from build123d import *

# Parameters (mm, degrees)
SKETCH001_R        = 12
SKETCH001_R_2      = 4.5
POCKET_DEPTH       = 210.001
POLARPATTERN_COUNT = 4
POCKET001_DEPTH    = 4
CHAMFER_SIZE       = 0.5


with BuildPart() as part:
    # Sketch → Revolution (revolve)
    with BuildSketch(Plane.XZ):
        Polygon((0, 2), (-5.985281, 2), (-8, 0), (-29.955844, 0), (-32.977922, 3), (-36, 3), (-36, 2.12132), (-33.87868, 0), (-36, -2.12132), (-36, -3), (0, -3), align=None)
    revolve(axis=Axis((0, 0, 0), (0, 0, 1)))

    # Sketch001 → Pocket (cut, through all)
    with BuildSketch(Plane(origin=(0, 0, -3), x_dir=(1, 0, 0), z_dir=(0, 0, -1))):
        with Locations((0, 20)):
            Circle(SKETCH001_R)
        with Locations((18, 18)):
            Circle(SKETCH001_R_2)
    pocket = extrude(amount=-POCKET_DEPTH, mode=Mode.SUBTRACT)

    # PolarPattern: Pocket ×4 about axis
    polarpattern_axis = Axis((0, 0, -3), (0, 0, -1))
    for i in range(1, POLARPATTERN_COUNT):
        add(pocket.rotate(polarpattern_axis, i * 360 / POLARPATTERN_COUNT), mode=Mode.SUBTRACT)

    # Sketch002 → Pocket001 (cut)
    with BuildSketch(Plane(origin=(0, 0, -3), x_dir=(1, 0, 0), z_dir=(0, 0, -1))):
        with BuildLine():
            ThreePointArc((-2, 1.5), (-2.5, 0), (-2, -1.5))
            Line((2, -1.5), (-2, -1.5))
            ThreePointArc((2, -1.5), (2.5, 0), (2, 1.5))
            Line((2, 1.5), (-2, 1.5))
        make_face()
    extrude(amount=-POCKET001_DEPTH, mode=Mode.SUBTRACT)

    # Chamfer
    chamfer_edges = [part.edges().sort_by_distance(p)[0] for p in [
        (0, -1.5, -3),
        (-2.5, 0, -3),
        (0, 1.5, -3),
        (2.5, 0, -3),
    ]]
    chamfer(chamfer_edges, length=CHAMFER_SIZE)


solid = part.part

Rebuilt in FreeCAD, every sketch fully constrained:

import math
import FreeCAD as App
import Part
import Sketcher
from FreeCAD import Vector
Q = App.Units.Quantity


def edges_at(feature, points):
    """Names of the edges that pass closest to the given points."""
    edges = feature.Shape.Edges
    near = lambda p: min(range(len(edges)), key=lambda i: edges[i].distToShape(Part.Vertex(*p))[0])
    return sorted({f"Edge{near(p) + 1}" for p in points})

doc = App.newDocument("Part")
body = doc.addObject("PartDesign::Body", "Body")

# Sketch on XZ plane
sketch1 = body.newObject("Sketcher::SketchObject", "Sketch")
sketch1.AttachmentSupport = (doc.getObject("XZ_Plane"), [""])
sketch1.MapMode = "FlatFace"
sketch1.addGeometry(Part.LineSegment(Vector(0, 2, 0), Vector(-6, 2, 0)), False)
sketch1.addGeometry(Part.LineSegment(Vector(-6, 2, 0), Vector(-8, 0, 0)), False)
sketch1.addGeometry(Part.LineSegment(Vector(-8, 0, 0), Vector(-30, 0, 0)), False)
sketch1.addGeometry(Part.LineSegment(Vector(-30, 0, 0), Vector(-33, 3, 0)), False)
sketch1.addGeometry(Part.LineSegment(Vector(-33, 3, 0), Vector(-36, 3, 0)), False)
sketch1.addGeometry(Part.LineSegment(Vector(-36, 3, 0), Vector(-36, 2.1, 0)), False)
sketch1.addGeometry(Part.LineSegment(Vector(-36, 2.1, 0), Vector(-33.9, 0, 0)), False)
sketch1.addGeometry(Part.LineSegment(Vector(-33.9, 0, 0), Vector(-36, -2.1, 0)), False)
sketch1.addGeometry(Part.LineSegment(Vector(-36, -2.1, 0), Vector(-36, -3, 0)), False)
sketch1.addGeometry(Part.LineSegment(Vector(-36, -3, 0), Vector(0, -3, 0)), False)
sketch1.addGeometry(Part.LineSegment(Vector(0, -3, 0), Vector(0, 2, 0)), False)
sketch1.addConstraint(Sketcher.Constraint("Coincident", 0, 2, 1, 1))
sketch1.addConstraint(Sketcher.Constraint("Coincident", 1, 2, 2, 1))
sketch1.addConstraint(Sketcher.Constraint("Coincident", 2, 2, 3, 1))
sketch1.addConstraint(Sketcher.Constraint("Coincident", 3, 2, 4, 1))
sketch1.addConstraint(Sketcher.Constraint("Coincident", 4, 2, 5, 1))
sketch1.addConstraint(Sketcher.Constraint("Coincident", 5, 2, 6, 1))
sketch1.addConstraint(Sketcher.Constraint("Coincident", 6, 2, 7, 1))
sketch1.addConstraint(Sketcher.Constraint("Coincident", 7, 2, 8, 1))
sketch1.addConstraint(Sketcher.Constraint("Coincident", 8, 2, 9, 1))
sketch1.addConstraint(Sketcher.Constraint("Coincident", 9, 2, 10, 1))
sketch1.addConstraint(Sketcher.Constraint("Coincident", 10, 2, 0, 1))
sketch1.addConstraint(Sketcher.Constraint("Horizontal", 0))
sketch1.addConstraint(Sketcher.Constraint("Horizontal", 2))
sketch1.addConstraint(Sketcher.Constraint("Horizontal", 4))
sketch1.addConstraint(Sketcher.Constraint("Vertical", 5))
sketch1.addConstraint(Sketcher.Constraint("Vertical", 8))
sketch1.addConstraint(Sketcher.Constraint("Horizontal", 9))
sketch1.addConstraint(Sketcher.Constraint("Vertical", 10))
sketch1.addConstraint(Sketcher.Constraint("Symmetric", 5, 2, 7, 2, -1))
sketch1.addConstraint(Sketcher.Constraint("PointOnObject", 1, 2, -1))
sketch1.addConstraint(Sketcher.Constraint("PointOnObject", 6, 2, -1))
sketch1.addConstraint(Sketcher.Constraint("PointOnObject", 9, 2, -2))
sketch1.addConstraint(Sketcher.Constraint("Perpendicular", 6, 7))
sketch1.addConstraint(Sketcher.Constraint("Equal", 5, 8))
sketch1.addConstraint(Sketcher.Constraint("DistanceX", 9, 1, 9, 2, Q("36 mm")))
sketch1.addConstraint(Sketcher.Constraint("DistanceY", 10, 1, 10, 2, Q("5 mm")))
sketch1.addConstraint(Sketcher.Constraint("Distance", 6, Q("3 mm")))
sketch1.addConstraint(Sketcher.Constraint("DistanceY", -1, 1, 0, 2, Q("2 mm")))
sketch1.addConstraint(Sketcher.Constraint("DistanceX", 1, 2, -1, 1, Q("8 mm")))
sketch1.addConstraint(Sketcher.Constraint("DistanceX", 0, 2, 0, 1, Q("5.985281 mm")))
sketch1.addConstraint(Sketcher.Constraint("DistanceX", 4, 2, 4, 1, Q("3.022078 mm")))
sketch1.addConstraint(Sketcher.Constraint("Distance", 3, Q("4.258281 mm")))
revolution = body.newObject("PartDesign::Revolution", "Revolution")
revolution.Profile = sketch1
revolution.ReferenceAxis = (sketch1, ["V_Axis"])
revolution.Angle = 360

# Sketch on XY plane
sketch2 = body.newObject("Sketcher::SketchObject", "Sketch001")
sketch2.AttachmentSupport = (doc.getObject("XY_Plane"), [""])
sketch2.MapMode = "FlatFace"
sketch2.AttachmentOffset = App.Placement(Vector(0, 0, -3), App.Rotation())
sketch2.addGeometry(Part.Circle(Vector(0, -20, 0), Vector(0, 0, 1), 12), False)
sketch2.addGeometry(Part.Circle(Vector(18, -18, 0), Vector(0, 0, 1), 4.5), False)
sketch2.addConstraint(Sketcher.Constraint("PointOnObject", 0, 3, -2))
sketch2.addConstraint(Sketcher.Constraint("Diameter", 0, Q("24 mm")))
sketch2.addConstraint(Sketcher.Constraint("Diameter", 1, Q("9 mm")))
sketch2.addConstraint(Sketcher.Constraint("DistanceY", 0, 3, -1, 1, Q("20 mm")))
sketch2.addConstraint(Sketcher.Constraint("DistanceX", -1, 1, 1, 3, Q("18 mm")))
sketch2.addConstraint(Sketcher.Constraint("DistanceY", 1, 3, -1, 1, Q("18 mm")))
pocket1 = body.newObject("PartDesign::Pocket", "Pocket")
pocket1.Profile = sketch2
pocket1.Type = "ThroughAll"
pocket1.Reversed = True
doc.recompute()

polarpattern = body.newObject("PartDesign::PolarPattern", "PolarPattern")
polarpattern.Originals = [pocket1]
polarpattern.Axis = (doc.getObject("Z_Axis"), [""])
polarpattern.Angle = 360
polarpattern.Occurrences = 4
body.Tip = polarpattern

# Sketch on XY plane
sketch3 = body.newObject("Sketcher::SketchObject", "Sketch002")
sketch3.AttachmentSupport = (doc.getObject("XY_Plane"), [""])
sketch3.MapMode = "FlatFace"
sketch3.AttachmentOffset = App.Placement(Vector(0, 0, -3), App.Rotation())
sketch3.addGeometry(Part.ArcOfCircle(Part.Circle(Vector(0, 0, 0), Vector(0, 0, 1), 2.5), math.radians(143), math.radians(217)), False)
sketch3.addGeometry(Part.LineSegment(Vector(-2, 1.5, 0), Vector(2, 1.5, 0)), False)
sketch3.addGeometry(Part.ArcOfCircle(Part.Circle(Vector(0, 0, 0), Vector(0, 0, 1), 2.5), math.radians(-37), math.radians(37)), False)
sketch3.addGeometry(Part.LineSegment(Vector(2, -1.5, 0), Vector(-2, -1.5, 0)), False)
sketch3.addConstraint(Sketcher.Constraint("Coincident", 0, 1, 1, 1))
sketch3.addConstraint(Sketcher.Constraint("Coincident", 1, 2, 2, 2))
sketch3.addConstraint(Sketcher.Constraint("Coincident", 2, 1, 3, 1))
sketch3.addConstraint(Sketcher.Constraint("Coincident", 3, 2, 0, 2))
sketch3.addConstraint(Sketcher.Constraint("Horizontal", 1))
sketch3.addConstraint(Sketcher.Constraint("Horizontal", 3))
sketch3.addConstraint(Sketcher.Constraint("Coincident", 0, 3, -1, 1))
sketch3.addConstraint(Sketcher.Constraint("Coincident", 2, 3, -1, 1))
sketch3.addConstraint(Sketcher.Constraint("Equal", 0, 2))
sketch3.addConstraint(Sketcher.Constraint("Vertical", 1, 2, 2, 1))
sketch3.addConstraint(Sketcher.Constraint("Radius", 0, Q("2.5 mm")))
sketch3.addConstraint(Sketcher.Constraint("DistanceX", 1, 1, 1, 2, Q("4 mm")))
pocket2 = body.newObject("PartDesign::Pocket", "Pocket001")
pocket2.Profile = sketch3
pocket2.Length = 4
pocket2.Reversed = True
doc.recompute()

chamfer = body.newObject("PartDesign::Chamfer", "Chamfer")
chamfer.Base = (pocket2, edges_at(pocket2, [
    (0, -1.5, -3),
    (-2.5, 0, -3),
    (0, 1.5, -3),
    (2.5, 0, -3),
]))
chamfer.Size = 0.5

doc.recompute()
